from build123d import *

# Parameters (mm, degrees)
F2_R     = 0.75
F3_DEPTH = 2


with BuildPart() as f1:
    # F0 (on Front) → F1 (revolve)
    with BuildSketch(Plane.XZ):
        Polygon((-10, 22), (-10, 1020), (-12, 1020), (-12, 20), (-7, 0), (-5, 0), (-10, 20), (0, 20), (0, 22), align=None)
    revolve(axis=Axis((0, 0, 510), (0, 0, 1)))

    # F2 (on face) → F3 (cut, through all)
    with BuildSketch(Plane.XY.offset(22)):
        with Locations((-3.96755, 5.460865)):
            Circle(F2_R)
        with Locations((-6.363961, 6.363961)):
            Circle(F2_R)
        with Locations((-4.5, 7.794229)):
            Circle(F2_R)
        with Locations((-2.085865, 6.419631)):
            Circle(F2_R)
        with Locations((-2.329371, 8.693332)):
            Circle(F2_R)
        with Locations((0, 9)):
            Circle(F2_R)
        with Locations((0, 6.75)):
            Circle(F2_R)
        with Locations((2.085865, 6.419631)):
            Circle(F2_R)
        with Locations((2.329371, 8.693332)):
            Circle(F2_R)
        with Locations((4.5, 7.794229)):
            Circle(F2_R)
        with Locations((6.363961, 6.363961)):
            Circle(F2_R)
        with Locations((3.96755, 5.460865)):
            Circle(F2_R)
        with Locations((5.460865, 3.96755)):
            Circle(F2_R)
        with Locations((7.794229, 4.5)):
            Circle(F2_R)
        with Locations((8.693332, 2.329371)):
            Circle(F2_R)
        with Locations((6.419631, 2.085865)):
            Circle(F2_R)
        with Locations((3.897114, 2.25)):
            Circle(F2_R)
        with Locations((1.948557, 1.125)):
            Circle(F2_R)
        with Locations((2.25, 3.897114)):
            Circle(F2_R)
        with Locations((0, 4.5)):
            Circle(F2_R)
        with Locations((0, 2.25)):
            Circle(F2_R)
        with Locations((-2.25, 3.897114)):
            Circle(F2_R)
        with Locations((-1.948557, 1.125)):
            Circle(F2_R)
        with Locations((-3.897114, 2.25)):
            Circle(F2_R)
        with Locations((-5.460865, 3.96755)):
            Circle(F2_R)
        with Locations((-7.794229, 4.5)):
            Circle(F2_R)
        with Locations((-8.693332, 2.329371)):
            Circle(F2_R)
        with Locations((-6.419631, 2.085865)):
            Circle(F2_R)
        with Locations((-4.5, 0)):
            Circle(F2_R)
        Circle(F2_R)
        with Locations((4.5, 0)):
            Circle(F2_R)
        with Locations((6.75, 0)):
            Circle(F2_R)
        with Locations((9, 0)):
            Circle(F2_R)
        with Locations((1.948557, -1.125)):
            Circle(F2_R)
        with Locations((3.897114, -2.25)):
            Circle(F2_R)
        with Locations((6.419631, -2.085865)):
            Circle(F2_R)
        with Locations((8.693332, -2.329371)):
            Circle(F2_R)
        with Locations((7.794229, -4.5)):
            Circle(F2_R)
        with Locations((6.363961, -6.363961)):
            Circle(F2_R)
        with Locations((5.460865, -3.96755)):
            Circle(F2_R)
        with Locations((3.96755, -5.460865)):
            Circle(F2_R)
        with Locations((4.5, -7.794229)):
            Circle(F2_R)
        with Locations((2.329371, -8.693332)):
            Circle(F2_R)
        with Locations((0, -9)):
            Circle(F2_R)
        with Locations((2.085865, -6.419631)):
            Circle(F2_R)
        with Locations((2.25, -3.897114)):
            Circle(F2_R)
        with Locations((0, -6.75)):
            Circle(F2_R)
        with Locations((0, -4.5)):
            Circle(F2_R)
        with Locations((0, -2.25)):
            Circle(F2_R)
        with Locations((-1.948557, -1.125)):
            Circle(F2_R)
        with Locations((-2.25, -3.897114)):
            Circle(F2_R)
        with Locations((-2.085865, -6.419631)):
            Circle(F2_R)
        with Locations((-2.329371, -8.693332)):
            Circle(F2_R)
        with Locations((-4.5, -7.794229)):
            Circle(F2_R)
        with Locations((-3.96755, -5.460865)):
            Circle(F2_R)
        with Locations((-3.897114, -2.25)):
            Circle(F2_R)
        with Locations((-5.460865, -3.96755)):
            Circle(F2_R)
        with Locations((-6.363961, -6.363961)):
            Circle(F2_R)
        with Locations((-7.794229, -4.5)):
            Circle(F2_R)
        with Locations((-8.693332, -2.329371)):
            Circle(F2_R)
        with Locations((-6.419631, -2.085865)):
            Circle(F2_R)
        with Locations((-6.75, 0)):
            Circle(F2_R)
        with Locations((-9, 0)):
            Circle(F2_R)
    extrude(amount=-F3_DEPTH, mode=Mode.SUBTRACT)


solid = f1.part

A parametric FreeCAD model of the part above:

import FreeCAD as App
import Part
import Sketcher
from FreeCAD import Vector
Q = App.Units.Quantity

doc = App.newDocument("Part")
body = doc.addObject("PartDesign::Body", "Body")

# Sketch on XZ plane
sketch1 = doc.addObject("Sketcher::SketchObject", "Sketch")
body.addObject(sketch1)
sketch1.AttachmentSupport = (doc.XZ_Plane, [""])
sketch1.MapMode = "FlatFace"
sketch1.addGeometry([
    Part.LineSegment(Vector(-10, 22, 0), Vector(-10, 1020, 0)),  # 0
    Part.LineSegment(Vector(-10, 1020, 0), Vector(-12, 1020, 0)),  # 1
    Part.LineSegment(Vector(-12, 1020, 0), Vector(-12, 20, 0)),  # 2
    Part.LineSegment(Vector(-12, 20, 0), Vector(-7, 0, 0)),  # 3
    Part.LineSegment(Vector(-7, 0, 0), Vector(-5, 0, 0)),  # 4
    Part.LineSegment(Vector(-5, 0, 0), Vector(-10, 20, 0)),  # 5
    Part.LineSegment(Vector(-10, 20, 0), Vector(0, 20, 0)),  # 6
    Part.LineSegment(Vector(0, 20, 0), Vector(0, 22, 0)),  # 7
    Part.LineSegment(Vector(0, 22, 0), Vector(-10, 22, 0)),  # 8
], False)
sketch1.addConstraint([
    Sketcher.Constraint("Coincident", 0, 2, 1, 1),
    Sketcher.Constraint("Coincident", 1, 2, 2, 1),
    Sketcher.Constraint("Coincident", 2, 2, 3, 1),
    Sketcher.Constraint("Coincident", 3, 2, 4, 1),
    Sketcher.Constraint("Coincident", 4, 2, 5, 1),
    Sketcher.Constraint("Coincident", 5, 2, 6, 1),
    Sketcher.Constraint("Coincident", 6, 2, 7, 1),
    Sketcher.Constraint("Coincident", 7, 2, 8, 1),
    Sketcher.Constraint("Coincident", 8, 2, 0, 1),
    Sketcher.Constraint("Vertical", 0),
    Sketcher.Constraint("Horizontal", 1),
    Sketcher.Constraint("Vertical", 2),
    Sketcher.Constraint("Horizontal", 4),
    Sketcher.Constraint("Horizontal", 6),
    Sketcher.Constraint("Vertical", 7),
    Sketcher.Constraint("Horizontal", 8),
    Sketcher.Constraint("PointOnObject", 3, 2, -1),
    Sketcher.Constraint("PointOnObject", 6, 2, -2),
    Sketcher.Constraint("Parallel", 3, 5),
    Sketcher.Constraint("Horizontal", 2, 2, 5, 2),
    Sketcher.Constraint("Vertical", 0, 2, 5, 2),
    Sketcher.Constraint("Equal", 4, 7),
    Sketcher.Constraint("DistanceX", 1, 2, 1, 1, Q("2 mm")),
    Sketcher.Constraint("DistanceX", 6, 1, 6, 2, Q("10 mm")),
    Sketcher.Constraint("DistanceY", 0, 1, 0, 2, Q("998 mm")),
    Sketcher.Constraint("DistanceY", -1, 1, 0, 2, Q("1020 mm")),
    Sketcher.Constraint("DistanceX", 3, 2, -1, 1, Q("7 mm")),
])
revolution = doc.addObject("PartDesign::Revolution", "Revolution")
body.addObject(revolution)
revolution.Profile = sketch1
revolution.ReferenceAxis = (sketch1, ["V_Axis"])
revolution.Angle = 360

# Sketch on XY plane
sketch2 = doc.addObject("Sketcher::SketchObject", "Sketch001")
body.addObject(sketch2)
sketch2.AttachmentSupport = (doc.XY_Plane, [""])
sketch2.MapMode = "FlatFace"
sketch2.AttachmentOffset = App.Placement(Vector(0, 0, 22), App.Rotation())
sketch2.addGeometry([
    Part.Circle(Vector(-4, 5.5, 0), Vector(0, 0, 1), 0.8),  # 0
    Part.Circle(Vector(-6.4, 6.4, 0), Vector(0, 0, 1), 0.8),  # 1
    Part.Circle(Vector(-4.5, 7.8, 0), Vector(0, 0, 1), 0.8),  # 2
    Part.Circle(Vector(-2.1, 6.4, 0), Vector(0, 0, 1), 0.8),  # 3
    Part.Circle(Vector(-2.3, 8.7, 0), Vector(0, 0, 1), 0.8),  # 4
    Part.Circle(Vector(0, 9, 0), Vector(0, 0, 1), 0.8),  # 5
    Part.Circle(Vector(0, 6.8, 0), Vector(0, 0, 1), 0.8),  # 6
    Part.Circle(Vector(2.1, 6.4, 0), Vector(0, 0, 1), 0.8),  # 7
    Part.Circle(Vector(2.3, 8.7, 0), Vector(0, 0, 1), 0.8),  # 8
    Part.Circle(Vector(4.5, 7.8, 0), Vector(0, 0, 1), 0.8),  # 9
    Part.Circle(Vector(6.4, 6.4, 0), Vector(0, 0, 1), 0.8),  # 10
    Part.Circle(Vector(4, 5.5, 0), Vector(0, 0, 1), 0.8),  # 11
    Part.Circle(Vector(5.5, 4, 0), Vector(0, 0, 1), 0.8),  # 12
    Part.Circle(Vector(7.8, 4.5, 0), Vector(0, 0, 1), 0.8),  # 13
    Part.Circle(Vector(8.7, 2.3, 0), Vector(0, 0, 1), 0.8),  # 14
    Part.Circle(Vector(6.4, 2.1, 0), Vector(0, 0, 1), 0.8),  # 15
    Part.Circle(Vector(3.9, 2.2, 0), Vector(0, 0, 1), 0.8),  # 16
    Part.Circle(Vector(1.9, 1.1, 0), Vector(0, 0, 1), 0.8),  # 17
    Part.Circle(Vector(2.2, 3.9, 0), Vector(0, 0, 1), 0.8),  # 18
    Part.Circle(Vector(0, 4.5, 0), Vector(0, 0, 1), 0.8),  # 19
    Part.Circle(Vector(0, 2.2, 0), Vector(0, 0, 1), 0.8),  # 20
    Part.Circle(Vector(-2.2, 3.9, 0), Vector(0, 0, 1), 0.8),  # 21
    Part.Circle(Vector(-1.9, 1.1, 0), Vector(0, 0, 1), 0.8),  # 22
    Part.Circle(Vector(-3.9, 2.2, 0), Vector(0, 0, 1), 0.8),  # 23
    Part.Circle(Vector(-5.5, 4, 0), Vector(0, 0, 1), 0.8),  # 24
    Part.Circle(Vector(-7.8, 4.5, 0), Vector(0, 0, 1), 0.8),  # 25
    Part.Circle(Vector(-8.7, 2.3, 0), Vector(0, 0, 1), 0.8),  # 26
    Part.Circle(Vector(-6.4, 2.1, 0), Vector(0, 0, 1), 0.8),  # 27
    Part.Circle(Vector(-4.5, 0, 0), Vector(0, 0, 1), 0.8),  # 28
    Part.Circle(Vector(0, 0, 0), Vector(0, 0, 1), 0.8),  # 29
    Part.Circle(Vector(4.5, 0, 0), Vector(0, 0, 1), 0.8),  # 30
    Part.Circle(Vector(6.8, 0, 0), Vector(0, 0, 1), 0.8),  # 31
    Part.Circle(Vector(9, 0, 0), Vector(0, 0, 1), 0.8),  # 32
    Part.Circle(Vector(1.9, -1.1, 0), Vector(0, 0, 1), 0.8),  # 33
    Part.Circle(Vector(3.9, -2.2, 0), Vector(0, 0, 1), 0.8),  # 34
    Part.Circle(Vector(6.4, -2.1, 0), Vector(0, 0, 1), 0.8),  # 35
    Part.Circle(Vector(8.7, -2.3, 0), Vector(0, 0, 1), 0.8),  # 36
    Part.Circle(Vector(7.8, -4.5, 0), Vector(0, 0, 1), 0.8),  # 37
    Part.Circle(Vector(6.4, -6.4, 0), Vector(0, 0, 1), 0.8),  # 38
    Part.Circle(Vector(5.5, -4, 0), Vector(0, 0, 1), 0.8),  # 39
    Part.Circle(Vector(4, -5.5, 0), Vector(0, 0, 1), 0.8),  # 40
    Part.Circle(Vector(4.5, -7.8, 0), Vector(0, 0, 1), 0.8),  # 41
    Part.Circle(Vector(2.3, -8.7, 0), Vector(0, 0, 1), 0.8),  # 42
    Part.Circle(Vector(0, -9, 0), Vector(0, 0, 1), 0.8),  # 43
    Part.Circle(Vector(2.1, -6.4, 0), Vector(0, 0, 1), 0.8),  # 44
    Part.Circle(Vector(2.2, -3.9, 0), Vector(0, 0, 1), 0.8),  # 45
    Part.Circle(Vector(0, -6.8, 0), Vector(0, 0, 1), 0.8),  # 46
    Part.Circle(Vector(0, -4.5, 0), Vector(0, 0, 1), 0.8),  # 47
    Part.Circle(Vector(0, -2.2, 0), Vector(0, 0, 1), 0.8),  # 48
    Part.Circle(Vector(-1.9, -1.1, 0), Vector(0, 0, 1), 0.8),  # 49
    Part.Circle(Vector(-2.2, -3.9, 0), Vector(0, 0, 1), 0.8),  # 50
    Part.Circle(Vector(-2.1, -6.4, 0), Vector(0, 0, 1), 0.8),  # 51
    Part.Circle(Vector(-2.3, -8.7, 0), Vector(0, 0, 1), 0.8),  # 52
    Part.Circle(Vector(-4.5, -7.8, 0), Vector(0, 0, 1), 0.8),  # 53
    Part.Circle(Vector(-4, -5.5, 0), Vector(0, 0, 1), 0.8),  # 54
    Part.Circle(Vector(-3.9, -2.2, 0), Vector(0, 0, 1), 0.8),  # 55
    Part.Circle(Vector(-5.5, -4, 0), Vector(0, 0, 1), 0.8),  # 56
    Part.Circle(Vector(-6.4, -6.4, 0), Vector(0, 0, 1), 0.8),  # 57
    Part.Circle(Vector(-7.8, -4.5, 0), Vector(0, 0, 1), 0.8),  # 58
    Part.Circle(Vector(-8.7, -2.3, 0), Vector(0, 0, 1), 0.8),  # 59
    Part.Circle(Vector(-6.4, -2.1, 0), Vector(0, 0, 1), 0.8),  # 60
    Part.Circle(Vector(-6.8, 0, 0), Vector(0, 0, 1), 0.8),  # 61
    Part.Circle(Vector(-9, 0, 0), Vector(0, 0, 1), 0.8),  # 62
], False)
sketch2.addConstraint([
    Sketcher.Constraint("Coincident", 29, 3, -1, 1),
    Sketcher.Constraint("Equal", 0, 1),
    Sketcher.Constraint("Equal", 1, 2),
    Sketcher.Constraint("Equal", 2, 3),
    Sketcher.Constraint("Equal", 3, 4),
    Sketcher.Constraint("Equal", 4, 5),
    Sketcher.Constraint("Equal", 5, 6),
    Sketcher.Constraint("Equal", 6, 7),
    Sketcher.Constraint("Equal", 7, 8),
    Sketcher.Constraint("Equal", 8, 9),
    Sketcher.Constraint("Equal", 9, 10),
    Sketcher.Constraint("Equal", 10, 11),
    Sketcher.Constraint("Equal", 11, 12),
    Sketcher.Constraint("Equal", 12, 13),
    Sketcher.Constraint("Equal", 13, 14),
    Sketcher.Constraint("Equal", 14, 15),
    Sketcher.Constraint("Equal", 15, 16),
    Sketcher.Constraint("Equal", 16, 17),
    Sketcher.Constraint("Equal", 17, 18),
    Sketcher.Constraint("Equal", 18, 19),
    Sketcher.Constraint("Equal", 19, 20),
    Sketcher.Constraint("Equal", 20, 21),
    Sketcher.Constraint("Equal", 21, 22),
    Sketcher.Constraint("Equal", 22, 23),
    Sketcher.Constraint("Equal", 23, 24),
    Sketcher.Constraint("Equal", 24, 25),
    Sketcher.Constraint("Equal", 25, 26),
    Sketcher.Constraint("Equal", 26, 27),
    Sketcher.Constraint("Equal", 27, 28),
    Sketcher.Constraint("Equal", 28, 29),
    Sketcher.Constraint("Equal", 29, 30),
    Sketcher.Constraint("Equal", 30, 31),
    Sketcher.Constraint("Equal", 31, 32),
    Sketcher.Constraint("Equal", 32, 33),
    Sketcher.Constraint("Equal", 33, 34),
    Sketcher.Constraint("Equal", 34, 35),
    Sketcher.Constraint("Equal", 35, 36),
    Sketcher.Constraint("Equal", 36, 37),
    Sketcher.Constraint("Equal", 37, 38),
    Sketcher.Constraint("Equal", 38, 39),
    Sketcher.Constraint("Equal", 39, 40),
    Sketcher.Constraint("Equal", 40, 41),
    Sketcher.Constraint("Equal", 41, 42),
    Sketcher.Constraint("Equal", 42, 43),
    Sketcher.Constraint("Equal", 43, 44),
    Sketcher.Constraint("Equal", 44, 45),
    Sketcher.Constraint("Equal", 45, 46),
    Sketcher.Constraint("Equal", 46, 47),
    Sketcher.Constraint("Equal", 47, 48),
    Sketcher.Constraint("Equal", 48, 49),
    Sketcher.Constraint("Equal", 49, 50),
    Sketcher.Constraint("Equal", 50, 51),
    Sketcher.Constraint("Equal", 51, 52),
    Sketcher.Constraint("Equal", 52, 53),
    Sketcher.Constraint("Equal", 53, 54),
    Sketcher.Constraint("Equal", 54, 55),
    Sketcher.Constraint("Equal", 55, 56),
    Sketcher.Constraint("Equal", 56, 57),
    Sketcher.Constraint("Equal", 57, 58),
    Sketcher.Constraint("Equal", 58, 59),
    Sketcher.Constraint("Equal", 59, 60),
    Sketcher.Constraint("Equal", 60, 61),
    Sketcher.Constraint("Equal", 61, 62),
    Sketcher.Constraint("Symmetric", 28, 3, 30, 3, -1, 1),
    Sketcher.Constraint("Symmetric", 22, 3, 33, 3, -1, 1),
    Sketcher.Constraint("Symmetric", 23, 3, 34, 3, -1, 1),
    Sketcher.Constraint("Symmetric", 27, 3, 35, 3, -1, 1),
    Sketcher.Constraint("Symmetric", 26, 3, 36, 3, -1, 1),
    Sketcher.Constraint("Symmetric", 25, 3, 37, 3, -1, 1),
    Sketcher.Constraint("Symmetric", 1, 3, 38, 3, -1, 1),
    Sketcher.Constraint("Symmetric", 24, 3, 39, 3, -1, 1),
    Sketcher.Constraint("Symmetric", 0, 3, 40, 3, -1, 1),
    Sketcher.Constraint("Symmetric", 2, 3, 41, 3, -1, 1),
    Sketcher.Constraint("Symmetric", 4, 3, 42, 3, -1, 1),
    Sketcher.Constraint("Symmetric", 5, 3, 43, 3, -1, 1),
    Sketcher.Constraint("Symmetric", 3, 3, 44, 3, -1, 1),
    Sketcher.Constraint("Symmetric", 21, 3, 45, 3, -1, 1),
    Sketcher.Constraint("Symmetric", 6, 3, 46, 3, -1, 1),
    Sketcher.Constraint("Symmetric", 19, 3, 47, 3, -1, 1),
    Sketcher.Constraint("Symmetric", 20, 3, 48, 3, -1, 1),
    Sketcher.Constraint("Symmetric", 17, 3, 49, 3, -1, 1),
    Sketcher.Constraint("Symmetric", 18, 3, 50, 3, -1, 1),
    Sketcher.Constraint("Symmetric", 7, 3, 51, 3, -1, 1),
    Sketcher.Constraint("Symmetric", 8, 3, 52, 3, -1, 1),
    Sketcher.Constraint("Symmetric", 9, 3, 53, 3, -1, 1),
    Sketcher.Constraint("Symmetric", 11, 3, 54, 3, -1, 1),
    Sketcher.Constraint("Symmetric", 16, 3, 55, 3, -1, 1),
    Sketcher.Constraint("Symmetric", 12, 3, 56, 3, -1, 1),
    Sketcher.Constraint("Symmetric", 10, 3, 57, 3, -1, 1),
    Sketcher.Constraint("Symmetric", 13, 3, 58, 3, -1, 1),
    Sketcher.Constraint("Symmetric", 14, 3, 59, 3, -1, 1),
    Sketcher.Constraint("Symmetric", 15, 3, 60, 3, -1, 1),
    Sketcher.Constraint("Symmetric", 31, 3, 61, 3, -1, 1),
    Sketcher.Constraint("Symmetric", 32, 3, 62, 3, -1, 1),
    Sketcher.Constraint("Symmetric", 3, 3, 7, 3, -2),
    Sketcher.Constraint("Symmetric", 4, 3, 8, 3, -2),
    Sketcher.Constraint("Symmetric", 2, 3, 9, 3, -2),
    Sketcher.Constraint("Symmetric", 1, 3, 10, 3, -2),
    Sketcher.Constraint("Symmetric", 0, 3, 11, 3, -2),
    Sketcher.Constraint("Symmetric", 18, 3, 21, 3, -2),
    Sketcher.Constraint("Symmetric", 17, 3, 22, 3, -2),
    Sketcher.Constraint("Symmetric", 16, 3, 23, 3, -2),
    Sketcher.Constraint("Symmetric", 12, 3, 24, 3, -2),
    Sketcher.Constraint("Symmetric", 13, 3, 25, 3, -2),
    Sketcher.Constraint("Symmetric", 14, 3, 26, 3, -2),
    Sketcher.Constraint("Symmetric", 15, 3, 27, 3, -2),
    Sketcher.Constraint("PointOnObject", 5, 3, -2),
    Sketcher.Constraint("PointOnObject", 6, 3, -2),
    Sketcher.Constraint("PointOnObject", 19, 3, -2),
    Sketcher.Constraint("PointOnObject", 20, 3, -2),
    Sketcher.Constraint("PointOnObject", 28, 3, -1),
    Sketcher.Constraint("PointOnObject", 31, 3, -1),
    Sketcher.Constraint("PointOnObject", 32, 3, -1),
    Sketcher.Constraint("Horizontal", 13, 3, 19, 3),
    Sketcher.Constraint("Horizontal", 16, 3, 20, 3),
    Sketcher.Constraint("Vertical", 2, 3, 28, 3),
    Sketcher.Constraint("Diameter", 0, Q("1.5 mm")),
    Sketcher.Constraint("DistanceY", -1, 1, 5, 3, Q("9 mm")),
    Sketcher.Constraint("DistanceX", -1, 1, 32, 3, Q("9 mm")),
    Sketcher.Constraint("DistanceX", 2, 3, -1, 1, Q("4.5 mm")),
    Sketcher.Constraint("DistanceY", -1, 1, 13, 3, Q("4.5 mm")),
    Sketcher.Constraint("DistanceY", -1, 1, 6, 3, Q("6.75 mm")),
    Sketcher.Constraint("DistanceY", -1, 1, 16, 3, Q("2.25 mm")),
    Sketcher.Constraint("DistanceX", -1, 1, 18, 3, Q("2.25 mm")),
    Sketcher.Constraint("DistanceX", -1, 1, 31, 3, Q("6.75 mm")),
    Sketcher.Constraint("DistanceY", -1, 1, 17, 3, Q("1.125 mm")),
    Sketcher.Constraint("DistanceX", 0, 3, -1, 1, Q("3.96755 mm")),
    Sketcher.Constraint("DistanceX", 1, 3, -1, 1, Q("6.363961 mm")),
    Sketcher.Constraint("DistanceY", -1, 1, 1, 3, Q("6.363961 mm")),
    Sketcher.Constraint("DistanceY", -1, 1, 2, 3, Q("7.794229 mm")),
    Sketcher.Constraint("DistanceY", -1, 1, 3, 3, Q("6.419631 mm")),
    Sketcher.Constraint("DistanceX", 4, 3, -1, 1, Q("2.329371 mm")),
    Sketcher.Constraint("DistanceY", -1, 1, 12, 3, Q("3.96755 mm")),
    Sketcher.Constraint("DistanceX", -1, 1, 13, 3, Q("7.794229 mm")),
    Sketcher.Constraint("DistanceY", -1, 1, 14, 3, Q("2.329371 mm")),
    Sketcher.Constraint("DistanceX", -1, 1, 15, 3, Q("6.419631 mm")),
    Sketcher.Constraint("DistanceY", -1, 1, 0, 3, Q("5.460865 mm")),
    Sketcher.Constraint("DistanceX", 3, 3, -1, 1, Q("2.085865 mm")),
    Sketcher.Constraint("DistanceY", -1, 1, 4, 3, Q("8.693332 mm")),
    Sketcher.Constraint("DistanceX", -1, 1, 12, 3, Q("5.460865 mm")),
    Sketcher.Constraint("DistanceX", -1, 1, 14, 3, Q("8.693332 mm")),
    Sketcher.Constraint("DistanceY", -1, 1, 15, 3, Q("2.085865 mm")),
    Sketcher.Constraint("DistanceX", -1, 1, 16, 3, Q("3.897114 mm")),
    Sketcher.Constraint("DistanceX", -1, 1, 17, 3, Q("1.948557 mm")),
    Sketcher.Constraint("DistanceY", -1, 1, 18, 3, Q("3.897114 mm")),
])
pocket1 = doc.addObject("PartDesign::Pocket", "Pocket")
body.addObject(pocket1)
pocket1.Profile = sketch2
pocket1.Length = 2

doc.recompute()
